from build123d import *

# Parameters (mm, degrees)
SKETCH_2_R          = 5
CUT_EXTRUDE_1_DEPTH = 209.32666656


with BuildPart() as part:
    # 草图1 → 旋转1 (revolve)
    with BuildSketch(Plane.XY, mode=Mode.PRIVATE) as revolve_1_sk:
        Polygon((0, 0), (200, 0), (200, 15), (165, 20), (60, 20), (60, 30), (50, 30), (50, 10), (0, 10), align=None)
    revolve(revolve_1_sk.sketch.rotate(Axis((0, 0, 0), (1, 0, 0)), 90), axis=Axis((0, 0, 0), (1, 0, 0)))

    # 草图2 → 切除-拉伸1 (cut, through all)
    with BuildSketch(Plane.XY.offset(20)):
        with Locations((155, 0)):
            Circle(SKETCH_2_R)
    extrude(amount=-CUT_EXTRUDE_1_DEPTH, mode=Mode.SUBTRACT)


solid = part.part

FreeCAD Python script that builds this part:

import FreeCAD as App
import Part
import Sketcher
from FreeCAD import Vector
Q = App.Units.Quantity


def add_polygon(sketch, points):
    """Adds a closed chain of lines whose ends are joined by coincident constraints."""
    first, n = sketch.GeometryCount, len(points)
    for a, b in zip(points, points[1:] + points[:1]):
        sketch.addGeometry(Part.LineSegment(App.Vector(*a, 0), App.Vector(*b, 0)), False)
    for i in range(n):
        sketch.addConstraint(Sketcher.Constraint("Coincident", first + i, 2, first + (i + 1) % n, 1))

doc = App.newDocument("Part")
body = doc.addObject("PartDesign::Body", "Body")

sketch1 = doc.addObject("Sketcher::SketchObject", "Sketch")
body.addObject(sketch1)
sketch1.AttachmentSupport = (doc.XY_Plane, [""])
sketch1.MapMode = "FlatFace"
add_polygon(sketch1, [(0, 0), (200, 0), (200, 15), (165, 20), (60, 20), (60, 30), (50, 30), (50, 10), (0, 10)])
sketch1.addConstraint([
    Sketcher.Constraint("Horizontal", 0),
    Sketcher.Constraint("Vertical", 1),
    Sketcher.Constraint("Horizontal", 3),
    Sketcher.Constraint("Vertical", 4),
    Sketcher.Constraint("Horizontal", 5),
    Sketcher.Constraint("Vertical", 6),
    Sketcher.Constraint("Horizontal", 7),
    Sketcher.Constraint("Vertical", 8),
    Sketcher.Constraint("Coincident", 8, 2, -1, 1),
    Sketcher.Constraint("Equal", 5, 4),
    Sketcher.Constraint("Equal", 4, 8),
    Sketcher.Constraint("DistanceX", 0, 1, 0, 2, Q("200 mm")),
    Sketcher.Constraint("DistanceX", 3, 2, 3, 1, Q("105 mm")),
    Sketcher.Constraint("DistanceX", 5, 2, 5, 1, Q("10 mm")),
    Sketcher.Constraint("DistanceX", 7, 2, 7, 1, Q("50 mm")),
    Sketcher.Constraint("DistanceY", 1, 1, 1, 2, Q("15 mm")),
    Sketcher.Constraint("DistanceY", 6, 2, 6, 1, Q("20 mm")),
])
revolution = doc.addObject("PartDesign::Revolution", "Revolution")
body.addObject(revolution)
revolution.Profile = sketch1
revolution.ReferenceAxis = (sketch1, ["H_Axis"])
revolution.Angle = 360

sketch2 = doc.addObject("Sketcher::SketchObject", "Sketch001")
body.addObject(sketch2)
sketch2.AttachmentSupport = (doc.XY_Plane, [""])
sketch2.MapMode = "FlatFace"
sketch2.AttachmentOffset = App.Placement(Vector(0, 0, 20), App.Rotation())
sketch2.addGeometry(Part.Circle(Vector(155, 0, 0), Vector(0, 0, 1), 5), False)
sketch2.addConstraint([
    Sketcher.Constraint("PointOnObject", 0, 3, -1),
    Sketcher.Constraint("Diameter", 0, Q("10 mm")),
    Sketcher.Constraint("DistanceX", -1, 1, 0, 3, Q("155 mm")),
])
pocket1 = doc.addObject("PartDesign::Pocket", "Pocket")
body.addObject(pocket1)
pocket1.Profile = sketch2
pocket1.Type = "ThroughAll"

doc.recompute()
